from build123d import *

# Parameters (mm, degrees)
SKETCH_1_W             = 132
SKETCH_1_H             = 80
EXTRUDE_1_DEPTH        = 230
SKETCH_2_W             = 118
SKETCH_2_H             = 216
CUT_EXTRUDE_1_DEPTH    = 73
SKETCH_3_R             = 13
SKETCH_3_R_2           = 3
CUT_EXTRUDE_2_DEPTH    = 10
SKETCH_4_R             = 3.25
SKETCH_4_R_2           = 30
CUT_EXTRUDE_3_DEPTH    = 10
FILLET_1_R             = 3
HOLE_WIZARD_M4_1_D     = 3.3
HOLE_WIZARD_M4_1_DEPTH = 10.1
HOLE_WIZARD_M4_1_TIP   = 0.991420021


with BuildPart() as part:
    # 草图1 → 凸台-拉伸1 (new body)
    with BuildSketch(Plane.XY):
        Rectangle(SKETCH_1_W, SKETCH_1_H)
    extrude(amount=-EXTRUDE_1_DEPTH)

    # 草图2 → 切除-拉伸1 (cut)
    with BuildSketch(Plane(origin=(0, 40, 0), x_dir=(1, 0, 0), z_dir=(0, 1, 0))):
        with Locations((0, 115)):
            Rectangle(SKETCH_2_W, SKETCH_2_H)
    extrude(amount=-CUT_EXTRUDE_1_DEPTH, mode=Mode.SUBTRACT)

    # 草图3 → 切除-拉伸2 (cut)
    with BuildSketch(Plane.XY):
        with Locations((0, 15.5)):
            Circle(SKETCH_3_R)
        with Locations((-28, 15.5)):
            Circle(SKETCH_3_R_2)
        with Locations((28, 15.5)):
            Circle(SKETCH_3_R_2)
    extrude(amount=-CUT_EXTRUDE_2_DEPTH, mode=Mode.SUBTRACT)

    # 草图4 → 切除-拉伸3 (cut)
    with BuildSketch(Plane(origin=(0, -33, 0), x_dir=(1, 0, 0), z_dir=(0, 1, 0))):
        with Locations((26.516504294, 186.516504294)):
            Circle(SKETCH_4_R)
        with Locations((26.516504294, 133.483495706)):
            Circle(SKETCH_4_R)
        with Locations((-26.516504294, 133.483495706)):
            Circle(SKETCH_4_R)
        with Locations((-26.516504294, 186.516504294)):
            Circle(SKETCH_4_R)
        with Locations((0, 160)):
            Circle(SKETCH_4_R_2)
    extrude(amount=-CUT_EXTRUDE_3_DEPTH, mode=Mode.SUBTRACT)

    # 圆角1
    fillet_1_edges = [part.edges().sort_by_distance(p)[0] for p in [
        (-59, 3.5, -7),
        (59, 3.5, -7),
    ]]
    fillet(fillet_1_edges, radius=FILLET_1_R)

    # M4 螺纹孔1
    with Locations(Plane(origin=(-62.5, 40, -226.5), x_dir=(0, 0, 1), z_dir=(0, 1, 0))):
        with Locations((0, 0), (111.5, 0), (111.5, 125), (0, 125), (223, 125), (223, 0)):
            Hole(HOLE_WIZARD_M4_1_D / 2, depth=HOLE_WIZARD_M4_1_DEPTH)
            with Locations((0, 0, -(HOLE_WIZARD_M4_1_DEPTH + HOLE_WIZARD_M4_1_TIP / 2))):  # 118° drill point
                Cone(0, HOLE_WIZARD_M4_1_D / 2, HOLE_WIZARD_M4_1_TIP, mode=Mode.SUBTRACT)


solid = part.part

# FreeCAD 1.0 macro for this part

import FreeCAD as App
import Part
import Sketcher
from FreeCAD import Vector
Q = App.Units.Quantity


def edges_at(feature, points):
    """Names of the edges that pass closest to the given points."""
    edges = feature.Shape.Edges
    near = lambda p: min(range(len(edges)), key=lambda i: edges[i].distToShape(Part.Vertex(*p))[0])
    return sorted({f"Edge{near(p) + 1}" for p in points})


def add_polygon(sketch, points):
    """Adds a closed chain of lines whose ends are joined by coincident constraints."""
    first, n = sketch.GeometryCount, len(points)
    for a, b in zip(points, points[1:] + points[:1]):
        sketch.addGeometry(Part.LineSegment(App.Vector(*a, 0), App.Vector(*b, 0)), False)
    for i in range(n):
        sketch.addConstraint(Sketcher.Constraint("Coincident", first + i, 2, first + (i + 1) % n, 1))

doc = App.newDocument("Part")
params = doc.addObject("Spreadsheet::Sheet", "Params")
for row, (alias, value) in enumerate([
    ("sketch1_width", "132 mm"),
    ("sketch1_height", "80 mm"),
    ("pad1_length", "230 mm"),
    ("sketch2_width", "118 mm"),
    ("sketch2_height", "216 mm"),
    ("pocket1_length", "73 mm"),
    ("sketch3_diameter", "26 mm"),
    ("sketch3_diameter2", "6 mm"),
    ("pocket2_length", "10 mm"),
    ("sketch4_diameter", "60 mm"),
    ("sketch4_diameter2", "6.5 mm"),
    ("pocket3_length", "10 mm"),
    ("fillet_radius", "3 mm"),
    ("sketch5_diameter", "3.3 mm"),
    ("hole_diameter", "3.3 mm"),
    ("hole_depth", "10.1 mm"),
], start=1):
    params.set(f"A{row}", alias)
    params.set(f"B{row}", "=" + value)
    params.setAlias(f"B{row}", alias)

body = doc.addObject("PartDesign::Body", "Body")

# Sketch on XY plane
sketch1 = doc.addObject("Sketcher::SketchObject", "Sketch")
body.addObject(sketch1)
sketch1.AttachmentSupport = (doc.XY_Plane, [""])
sketch1.MapMode = "FlatFace"
add_polygon(sketch1, [(-66, 40), (-66, -40), (66, -40), (66, 40)])  # lines 0-3
sketch1.addConstraint([
    Sketcher.Constraint("Vertical", 0),
    Sketcher.Constraint("Horizontal", 1),
    Sketcher.Constraint("Vertical", 2),
    Sketcher.Constraint("Horizontal", 3),
    Sketcher.Constraint("Symmetric", 0, 2, 2, 2, -1, 1),
    Sketcher.Constraint("DistanceX", 1, 1, 1, 2, Q("132 mm")),
    Sketcher.Constraint("DistanceY", 0, 2, 0, 1, Q("80 mm")),
])
sketch1.setExpression("Constraints[9]", "Params.sketch1_width")
sketch1.setExpression("Constraints[10]", "Params.sketch1_height")
pad1 = doc.addObject("PartDesign::Pad", "Pad")
body.addObject(pad1)
pad1.Profile = sketch1
pad1.setExpression("Length", "Params.pad1_length")
pad1.Reversed = True

# Sketch on XZ plane
sketch2 = doc.addObject("Sketcher::SketchObject", "Sketch001")
body.addObject(sketch2)
sketch2.AttachmentSupport = (doc.XZ_Plane, [""])
sketch2.MapMode = "FlatFace"
sketch2.AttachmentOffset = App.Placement(Vector(0, 0, -40), App.Rotation())
add_polygon(sketch2, [(-59, -223), (-59, -7), (59, -7), (59, -223)])  # lines 0-3
sketch2.addConstraint([
    Sketcher.Constraint("Vertical", 0),
    Sketcher.Constraint("Horizontal", 1),
    Sketcher.Constraint("Vertical", 2),
    Sketcher.Constraint("Horizontal", 3),
    Sketcher.Constraint("DistanceX", 1, 1, 1, 2, Q("118 mm")),
    Sketcher.Constraint("DistanceY", 0, 1, 0, 2, Q("216 mm")),
    Sketcher.Constraint("DistanceX", 0, 2, -1, 1, Q("59 mm")),
    Sketcher.Constraint("DistanceY", 0, 2, -1, 1, Q("7 mm")),
])
sketch2.setExpression("Constraints[8]", "Params.sketch2_width")
sketch2.setExpression("Constraints[9]", "Params.sketch2_height")
pocket1 = doc.addObject("PartDesign::Pocket", "Pocket")
body.addObject(pocket1)
pocket1.Profile = sketch2
pocket1.setExpression("Length", "Params.pocket1_length")
pocket1.Reversed = True

# Sketch on XY plane
sketch3 = doc.addObject("Sketcher::SketchObject", "Sketch002")
body.addObject(sketch3)
sketch3.AttachmentSupport = (doc.XY_Plane, [""])
sketch3.MapMode = "FlatFace"
sketch3.addGeometry([
    Part.Circle(Vector(0, 15.5, 0), Vector(0, 0, 1), 13),
    Part.Circle(Vector(-28, 15.5, 0), Vector(0, 0, 1), 3),
    Part.Circle(Vector(28, 15.5, 0), Vector(0, 0, 1), 3),
], False)
sketch3.addConstraint([
    Sketcher.Constraint("Equal", 1, 2),
    Sketcher.Constraint("Symmetric", 1, 3, 2, 3, -2),
    Sketcher.Constraint("PointOnObject", 0, 3, -2),
    Sketcher.Constraint("Horizontal", 0, 3, 1, 3),
    Sketcher.Constraint("Diameter", 0, Q("26 mm")),
    Sketcher.Constraint("Diameter", 1, Q("6 mm")),
    Sketcher.Constraint("DistanceX", 1, 3, -1, 1, Q("28 mm")),
    Sketcher.Constraint("DistanceY", -1, 1, 0, 3, Q("15.5 mm")),
])
sketch3.setExpression("Constraints[4]", "Params.sketch3_diameter")
sketch3.setExpression("Constraints[5]", "Params.sketch3_diameter2")
pocket2 = doc.addObject("PartDesign::Pocket", "Pocket001")
body.addObject(pocket2)
pocket2.Profile = sketch3
pocket2.setExpression("Length", "Params.pocket2_length")

# Sketch on XZ plane
sketch4 = doc.addObject("Sketcher::SketchObject", "Sketch003")
body.addObject(sketch4)
sketch4.AttachmentSupport = (doc.XZ_Plane, [""])
sketch4.MapMode = "FlatFace"
sketch4.AttachmentOffset = App.Placement(Vector(0, 0, 33), App.Rotation())
sketch4.addGeometry([
    Part.Circle(Vector(26.516504, -186.516504, 0), Vector(0, 0, 1), 3.25),  # 0
    Part.Circle(Vector(26.516504, -133.483496, 0), Vector(0, 0, 1), 3.25),  # 1
    Part.Circle(Vector(-26.516504, -133.483496, 0), Vector(0, 0, 1), 3.25),  # 2
    Part.Circle(Vector(-26.516504, -186.516504, 0), Vector(0, 0, 1), 3.25),  # 3
    Part.Circle(Vector(0, -160, 0), Vector(0, 0, 1), 30),  # 4
], False)
sketch4.addConstraint([
    Sketcher.Constraint("Equal", 0, 1),
    Sketcher.Constraint("Equal", 1, 2),
    Sketcher.Constraint("Equal", 2, 3),
    Sketcher.Constraint("Symmetric", 1, 3, 2, 3, -2),
    Sketcher.Constraint("Symmetric", 0, 3, 3, 3, -2),
    Sketcher.Constraint("PointOnObject", 4, 3, -2),
    Sketcher.Constraint("Vertical", 0, 3, 1, 3),
    Sketcher.Constraint("Diameter", 4, Q("60 mm")),
    Sketcher.Constraint("Diameter", 0, Q("6.5 mm")),
    Sketcher.Constraint("DistanceY", 4, 3, -1, 1, Q("160 mm")),
    Sketcher.Constraint("DistanceY", 0, 3, 1, 3, Q("53.033009 mm")),
    Sketcher.Constraint("DistanceX", 2, 3, 1, 3, Q("53.033009 mm")),
    Sketcher.Constraint("DistanceY", 0, 3, -1, 1, Q("186.516504 mm")),
])
sketch4.setExpression("Constraints[7]", "Params.sketch4_diameter")
sketch4.setExpression("Constraints[8]", "Params.sketch4_diameter2")
pocket3 = doc.addObject("PartDesign::Pocket", "Pocket002")
body.addObject(pocket3)
pocket3.Profile = sketch4
pocket3.setExpression("Length", "Params.pocket3_length")
pocket3.Reversed = True
doc.recompute()

fillet = doc.addObject("PartDesign::Fillet", "Fillet")
body.addObject(fillet)
fillet.Base = (pocket3, edges_at(pocket3, [(-59, 3.5, -7), (59, 3.5, -7)]))
fillet.setExpression("Radius", "Params.fillet_radius")

# Sketch on XZ plane
sketch5 = doc.addObject("Sketcher::SketchObject", "Sketch004")
body.addObject(sketch5)
sketch5.AttachmentSupport = (doc.XZ_Plane, [""])
sketch5.MapMode = "FlatFace"
sketch5.AttachmentOffset = App.Placement(Vector(0, 0, -40), App.Rotation())
sketch5.addGeometry([
    Part.Circle(Vector(-62.5, -226.5, 0), Vector(0, 0, 1), 1.65),  # 0
    Part.Circle(Vector(-62.5, -115, 0), Vector(0, 0, 1), 1.65),  # 1
    Part.Circle(Vector(62.5, -115, 0), Vector(0, 0, 1), 1.65),  # 2
    Part.Circle(Vector(62.5, -226.5, 0), Vector(0, 0, 1), 1.65),  # 3
    Part.Circle(Vector(62.5, -3.5, 0), Vector(0, 0, 1), 1.65),  # 4
    Part.Circle(Vector(-62.5, -3.5, 0), Vector(0, 0, 1), 1.65),  # 5
], False)
sketch5.addConstraint([
    Sketcher.Constraint("Equal", 0, 1),
    Sketcher.Constraint("Equal", 1, 2),
    Sketcher.Constraint("Equal", 2, 3),
    Sketcher.Constraint("Equal", 3, 4),
    Sketcher.Constraint("Equal", 4, 5),
    Sketcher.Constraint("Symmetric", 1, 3, 2, 3, -2),
    Sketcher.Constraint("Symmetric", 0, 3, 3, 3, -2),
    Sketcher.Constraint("Symmetric", 4, 3, 5, 3, -2),
    Sketcher.Constraint("Vertical", 0, 3, 1, 3),
    Sketcher.Constraint("Vertical", 3, 3, 4, 3),
    Sketcher.Constraint("Diameter", 0, Q("3.3 mm")),
    Sketcher.Constraint("DistanceY", 1, 3, -1, 1, Q("115 mm")),
    Sketcher.Constraint("DistanceX", 1, 3, 2, 3, Q("125 mm")),
    Sketcher.Constraint("DistanceY", 3, 3, 4, 3, Q("223 mm")),
    Sketcher.Constraint("DistanceY", 0, 3, -1, 1, Q("226.5 mm")),
])
sketch5.setExpression("Constraints[10]", "Params.sketch5_diameter")
doc.recompute()
hole = doc.addObject("PartDesign::Hole", "Hole")
body.addObject(hole)
hole.Profile = sketch5
hole.ThreadType = "None"
hole.setExpression("Diameter", "Params.hole_diameter")
hole.DepthType = "Dimension"
hole.setExpression("Depth", "Params.hole_depth")
hole.DrillPoint = "Angled"
hole.DrillPointAngle = 118
hole.Reversed = True

doc.recompute()
